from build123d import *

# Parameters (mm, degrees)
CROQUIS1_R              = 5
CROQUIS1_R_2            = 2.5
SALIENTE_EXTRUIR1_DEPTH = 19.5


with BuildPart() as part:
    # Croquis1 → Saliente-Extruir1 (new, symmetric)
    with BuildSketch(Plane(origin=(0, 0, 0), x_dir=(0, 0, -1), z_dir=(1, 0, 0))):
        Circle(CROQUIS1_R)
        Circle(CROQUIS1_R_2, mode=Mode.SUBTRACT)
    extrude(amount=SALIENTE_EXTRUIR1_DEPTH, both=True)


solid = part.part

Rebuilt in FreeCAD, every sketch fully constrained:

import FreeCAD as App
import Part
import Sketcher
from FreeCAD import Vector

doc = App.newDocument("Part")
body = doc.addObject("PartDesign::Body", "Body")

sketch1 = doc.addObject("Sketcher::SketchObject", "Sketch")
body.addObject(sketch1)
sketch1.AttachmentSupport = (doc.YZ_Plane, [""])
sketch1.MapMode = "FlatFace"
sketch1.addGeometry([
    Part.Circle(Vector(0, 0, 0), Vector(0, 0, 1), 5),
    Part.Circle(Vector(0, 0, 0), Vector(0, 0, 1), 2.5),
], False)
sketch1.addConstraint([
    Sketcher.Constraint("Coincident", 0, 3, -1, 1),
    Sketcher.Constraint("Coincident", 1, 3, -1, 1),
    Sketcher.Constraint("Diameter", 0, 10.0),
    Sketcher.Constraint("Diameter", 1, 5.0),
])
pad1 = doc.addObject("PartDesign::Pad", "Pad")
body.addObject(pad1)
pad1.Profile = sketch1
pad1.Length = 39
pad1.Midplane = True

doc.recompute()
